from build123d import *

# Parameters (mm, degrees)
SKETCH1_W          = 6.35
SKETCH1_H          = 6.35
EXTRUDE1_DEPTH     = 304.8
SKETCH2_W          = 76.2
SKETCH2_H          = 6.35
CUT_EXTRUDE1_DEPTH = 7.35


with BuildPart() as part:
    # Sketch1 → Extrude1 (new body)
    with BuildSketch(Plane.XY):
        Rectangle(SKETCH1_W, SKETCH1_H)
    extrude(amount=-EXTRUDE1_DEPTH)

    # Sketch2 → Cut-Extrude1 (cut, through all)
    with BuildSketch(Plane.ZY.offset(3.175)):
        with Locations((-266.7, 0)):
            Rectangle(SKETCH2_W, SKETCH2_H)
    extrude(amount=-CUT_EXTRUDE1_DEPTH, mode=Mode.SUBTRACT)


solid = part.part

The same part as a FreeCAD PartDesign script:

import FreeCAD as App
import Part
import Sketcher
Q = App.Units.Quantity


def add_polygon(sketch, points):
    """Adds a closed chain of lines whose ends are joined by coincident constraints."""
    first, n = sketch.GeometryCount, len(points)
    for a, b in zip(points, points[1:] + points[:1]):
        sketch.addGeometry(Part.LineSegment(App.Vector(*a, 0), App.Vector(*b, 0)), False)
    for i in range(n):
        sketch.addConstraint(Sketcher.Constraint("Coincident", first + i, 2, first + (i + 1) % n, 1))

doc = App.newDocument("Part")
body = doc.addObject("PartDesign::Body", "Body")

# Sketch on XY plane
sketch1 = body.newObject("Sketcher::SketchObject", "Sketch")
sketch1.AttachmentSupport = (doc.getObject("XY_Plane"), [""])
sketch1.MapMode = "FlatFace"
add_polygon(sketch1, [(-3, 3), (-3, -3), (3, -3), (3, 3)])  # lines 0-3
sketch1.addConstraint([
    Sketcher.Constraint("Vertical", 0),
    Sketcher.Constraint("Horizontal", 1),
    Sketcher.Constraint("Vertical", 2),
    Sketcher.Constraint("Horizontal", 3),
    Sketcher.Constraint("Symmetric", 0, 2, 2, 2, -1, 1),
    Sketcher.Constraint("Equal", 3, 0),
    Sketcher.Constraint("DistanceX", 1, 1, 1, 2, Q("0.25 in")),
])
pad1 = body.newObject("PartDesign::Pad", "Pad")
pad1.Profile = sketch1
pad1.Length = Q("12 in")
pad1.Reversed = True

# Sketch on YZ plane
sketch2 = body.newObject("Sketcher::SketchObject", "Sketch001")
sketch2.AttachmentSupport = (doc.getObject("YZ_Plane"), [""])
sketch2.MapMode = "FlatFace"
sketch2.AttachmentOffset = App.Placement(App.Vector(0, 0, -0.125 * 25.4), App.Rotation())
add_polygon(sketch2, [(3, -305), (-3, -305), (-3, -229), (3, -229)])  # lines 0-3
sketch2.addConstraint([
    Sketcher.Constraint("Horizontal", 0),
    Sketcher.Constraint("Vertical", 1),
    Sketcher.Constraint("Horizontal", 2),
    Sketcher.Constraint("Vertical", 3),
    Sketcher.Constraint("DistanceY", 1, 1, 1, 2, Q("3 in")),
    Sketcher.Constraint("DistanceY", 0, 2, -1, 1, Q("12 in")),
    Sketcher.Constraint("DistanceX", 0, 2, 0, 1, Q("0.25 in")),
    Sketcher.Constraint("DistanceX", 0, 2, -1, 1, Q("0.125 in")),
])
pocket1 = body.newObject("PartDesign::Pocket", "Pocket")
pocket1.Profile = sketch2
pocket1.Type = "ThroughAll"
pocket1.Reversed = True

doc.recompute()
